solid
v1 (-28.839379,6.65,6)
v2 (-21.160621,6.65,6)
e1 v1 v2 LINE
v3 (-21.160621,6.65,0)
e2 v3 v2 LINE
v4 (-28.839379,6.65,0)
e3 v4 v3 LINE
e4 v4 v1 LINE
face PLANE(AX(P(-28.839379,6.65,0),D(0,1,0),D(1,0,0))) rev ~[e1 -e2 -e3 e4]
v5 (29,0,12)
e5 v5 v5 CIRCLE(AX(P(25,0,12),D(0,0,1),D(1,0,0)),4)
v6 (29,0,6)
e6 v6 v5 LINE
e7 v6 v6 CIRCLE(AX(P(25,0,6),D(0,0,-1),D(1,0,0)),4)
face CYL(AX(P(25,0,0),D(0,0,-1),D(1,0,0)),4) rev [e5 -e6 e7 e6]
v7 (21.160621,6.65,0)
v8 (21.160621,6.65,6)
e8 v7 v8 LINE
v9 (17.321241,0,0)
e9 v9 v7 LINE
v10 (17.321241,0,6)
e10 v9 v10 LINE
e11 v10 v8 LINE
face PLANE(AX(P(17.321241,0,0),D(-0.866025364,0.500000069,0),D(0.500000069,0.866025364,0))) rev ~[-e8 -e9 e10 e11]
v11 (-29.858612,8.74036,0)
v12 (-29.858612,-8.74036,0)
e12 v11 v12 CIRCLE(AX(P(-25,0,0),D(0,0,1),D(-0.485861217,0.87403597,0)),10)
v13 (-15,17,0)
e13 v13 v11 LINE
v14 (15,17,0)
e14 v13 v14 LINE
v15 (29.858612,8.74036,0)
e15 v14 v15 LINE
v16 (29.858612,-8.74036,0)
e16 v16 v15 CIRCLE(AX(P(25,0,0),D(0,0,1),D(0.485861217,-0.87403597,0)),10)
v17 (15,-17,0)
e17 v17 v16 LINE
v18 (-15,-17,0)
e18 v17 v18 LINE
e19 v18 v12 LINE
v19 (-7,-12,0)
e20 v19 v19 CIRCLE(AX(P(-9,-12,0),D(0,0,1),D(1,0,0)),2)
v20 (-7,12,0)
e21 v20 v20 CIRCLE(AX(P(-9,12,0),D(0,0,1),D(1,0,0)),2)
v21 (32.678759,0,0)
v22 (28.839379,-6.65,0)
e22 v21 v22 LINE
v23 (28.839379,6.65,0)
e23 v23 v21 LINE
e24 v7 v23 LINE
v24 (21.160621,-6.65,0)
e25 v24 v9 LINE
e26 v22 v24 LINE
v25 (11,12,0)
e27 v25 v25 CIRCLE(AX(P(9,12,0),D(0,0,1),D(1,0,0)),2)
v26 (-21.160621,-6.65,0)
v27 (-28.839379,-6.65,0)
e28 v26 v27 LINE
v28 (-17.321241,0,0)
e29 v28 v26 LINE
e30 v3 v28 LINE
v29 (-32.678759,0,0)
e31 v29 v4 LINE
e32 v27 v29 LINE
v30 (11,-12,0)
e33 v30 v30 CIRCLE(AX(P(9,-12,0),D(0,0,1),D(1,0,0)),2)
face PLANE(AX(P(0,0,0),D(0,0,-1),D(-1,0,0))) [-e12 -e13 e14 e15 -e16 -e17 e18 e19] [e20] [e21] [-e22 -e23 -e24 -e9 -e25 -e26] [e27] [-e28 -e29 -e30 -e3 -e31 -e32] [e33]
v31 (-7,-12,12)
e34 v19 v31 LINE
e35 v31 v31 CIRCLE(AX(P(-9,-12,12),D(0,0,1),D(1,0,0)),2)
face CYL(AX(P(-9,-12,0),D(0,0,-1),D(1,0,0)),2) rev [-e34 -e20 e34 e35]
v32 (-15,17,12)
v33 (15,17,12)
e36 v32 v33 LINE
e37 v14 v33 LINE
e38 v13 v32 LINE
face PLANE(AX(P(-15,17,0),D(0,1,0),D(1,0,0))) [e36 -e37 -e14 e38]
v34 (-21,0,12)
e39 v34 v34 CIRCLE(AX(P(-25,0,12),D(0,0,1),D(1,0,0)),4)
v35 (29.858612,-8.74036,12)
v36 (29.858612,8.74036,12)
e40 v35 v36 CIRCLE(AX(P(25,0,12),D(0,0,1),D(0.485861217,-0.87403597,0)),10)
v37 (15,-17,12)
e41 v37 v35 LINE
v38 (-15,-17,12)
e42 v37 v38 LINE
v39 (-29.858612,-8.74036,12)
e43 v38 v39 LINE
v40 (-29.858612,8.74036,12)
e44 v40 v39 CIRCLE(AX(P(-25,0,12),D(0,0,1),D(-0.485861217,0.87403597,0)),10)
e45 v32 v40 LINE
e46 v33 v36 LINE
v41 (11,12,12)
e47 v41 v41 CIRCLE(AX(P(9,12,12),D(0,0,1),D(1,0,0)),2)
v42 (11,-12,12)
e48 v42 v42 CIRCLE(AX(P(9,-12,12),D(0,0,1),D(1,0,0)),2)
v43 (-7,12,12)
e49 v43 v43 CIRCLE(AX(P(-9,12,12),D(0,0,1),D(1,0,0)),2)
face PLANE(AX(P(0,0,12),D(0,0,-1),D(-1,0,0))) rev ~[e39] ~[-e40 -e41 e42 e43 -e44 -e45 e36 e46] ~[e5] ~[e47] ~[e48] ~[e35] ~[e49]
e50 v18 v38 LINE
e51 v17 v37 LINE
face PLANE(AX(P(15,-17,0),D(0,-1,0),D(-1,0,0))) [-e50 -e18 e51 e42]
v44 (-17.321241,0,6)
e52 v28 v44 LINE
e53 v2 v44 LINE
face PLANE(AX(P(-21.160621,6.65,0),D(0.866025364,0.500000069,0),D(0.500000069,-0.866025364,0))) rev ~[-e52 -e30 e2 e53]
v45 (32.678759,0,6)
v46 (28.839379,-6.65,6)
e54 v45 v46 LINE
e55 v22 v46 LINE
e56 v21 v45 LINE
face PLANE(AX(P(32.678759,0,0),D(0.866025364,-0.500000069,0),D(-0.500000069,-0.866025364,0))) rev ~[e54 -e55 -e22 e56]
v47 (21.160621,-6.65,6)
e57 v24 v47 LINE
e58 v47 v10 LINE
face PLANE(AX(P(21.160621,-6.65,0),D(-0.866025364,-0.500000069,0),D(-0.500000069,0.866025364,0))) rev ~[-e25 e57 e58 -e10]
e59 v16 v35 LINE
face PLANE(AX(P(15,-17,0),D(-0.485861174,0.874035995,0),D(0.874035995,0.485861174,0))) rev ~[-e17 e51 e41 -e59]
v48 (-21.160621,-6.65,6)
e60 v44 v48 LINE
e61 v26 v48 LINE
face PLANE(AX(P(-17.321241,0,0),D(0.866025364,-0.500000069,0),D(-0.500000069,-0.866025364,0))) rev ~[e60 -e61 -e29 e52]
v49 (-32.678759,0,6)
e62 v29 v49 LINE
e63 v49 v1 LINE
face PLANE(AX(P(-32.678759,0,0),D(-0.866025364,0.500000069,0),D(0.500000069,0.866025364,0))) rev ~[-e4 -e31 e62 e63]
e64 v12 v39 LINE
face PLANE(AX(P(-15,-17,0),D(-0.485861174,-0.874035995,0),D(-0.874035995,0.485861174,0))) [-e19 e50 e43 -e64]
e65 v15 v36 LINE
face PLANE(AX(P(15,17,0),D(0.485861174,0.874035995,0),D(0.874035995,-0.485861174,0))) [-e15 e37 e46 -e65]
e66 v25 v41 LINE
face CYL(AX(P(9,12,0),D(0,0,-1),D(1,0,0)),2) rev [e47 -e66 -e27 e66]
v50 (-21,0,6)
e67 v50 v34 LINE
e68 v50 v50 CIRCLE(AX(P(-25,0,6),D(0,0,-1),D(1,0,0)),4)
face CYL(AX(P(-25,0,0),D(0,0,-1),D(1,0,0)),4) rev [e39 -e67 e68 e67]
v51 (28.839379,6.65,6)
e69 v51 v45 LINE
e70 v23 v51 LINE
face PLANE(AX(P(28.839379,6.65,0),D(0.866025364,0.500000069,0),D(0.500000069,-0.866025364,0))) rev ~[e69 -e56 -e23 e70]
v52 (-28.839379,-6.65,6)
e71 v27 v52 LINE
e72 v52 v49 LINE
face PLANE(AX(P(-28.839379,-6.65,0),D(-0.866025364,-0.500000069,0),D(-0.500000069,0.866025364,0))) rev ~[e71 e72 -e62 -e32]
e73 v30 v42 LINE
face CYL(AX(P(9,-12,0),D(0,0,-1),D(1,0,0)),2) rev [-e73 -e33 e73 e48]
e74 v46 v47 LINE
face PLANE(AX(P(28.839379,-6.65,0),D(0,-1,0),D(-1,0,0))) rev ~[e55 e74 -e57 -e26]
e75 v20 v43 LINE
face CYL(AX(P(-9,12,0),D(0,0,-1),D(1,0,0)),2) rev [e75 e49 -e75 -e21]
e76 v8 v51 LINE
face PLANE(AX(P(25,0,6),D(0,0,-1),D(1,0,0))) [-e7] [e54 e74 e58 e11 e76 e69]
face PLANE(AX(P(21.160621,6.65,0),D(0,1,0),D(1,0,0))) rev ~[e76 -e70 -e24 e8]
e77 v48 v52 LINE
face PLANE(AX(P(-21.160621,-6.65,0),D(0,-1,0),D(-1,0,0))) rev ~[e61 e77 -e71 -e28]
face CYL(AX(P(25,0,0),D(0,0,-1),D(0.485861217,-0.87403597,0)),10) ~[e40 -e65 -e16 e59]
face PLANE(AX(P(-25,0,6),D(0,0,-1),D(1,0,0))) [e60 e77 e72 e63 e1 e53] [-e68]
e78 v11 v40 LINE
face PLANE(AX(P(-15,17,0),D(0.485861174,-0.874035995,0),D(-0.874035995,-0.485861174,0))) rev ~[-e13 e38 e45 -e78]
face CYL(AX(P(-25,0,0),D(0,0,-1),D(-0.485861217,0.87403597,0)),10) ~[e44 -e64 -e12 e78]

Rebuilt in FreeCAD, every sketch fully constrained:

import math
import FreeCAD as App
import Part
import Sketcher

V = App.Vector
Q = App.Units.Quantity

doc = App.newDocument("Part")
body = doc.addObject("PartDesign::Body", "Body")

# Sketch on XY plane
sketch1 = body.newObject("Sketcher::SketchObject", "Sketch")
sketch1.AttachmentSupport = (doc.getObject("XY_Plane"), [""])
sketch1.MapMode = "FlatFace"
sketch1.addGeometry(Part.LineSegment(V(15, 17, 0), V(-15, 17, 0)), False)
sketch1.addGeometry(Part.LineSegment(V(-15, 17, 0), V(-29.858612, 8.74036, 0)), False)
sketch1.addGeometry(Part.ArcOfCircle(Part.Circle(V(-25, 0, 0), V(0, 0, 1), 10), math.radians(119.068912), math.radians(240.931088)), False)
sketch1.addGeometry(Part.LineSegment(V(-29.858612, -8.74036, 0), V(-15, -17, 0)), False)
sketch1.addGeometry(Part.LineSegment(V(-15, -17, 0), V(15, -17, 0)), False)
sketch1.addGeometry(Part.LineSegment(V(15, -17, 0), V(29.858612, -8.74036, 0)), False)
sketch1.addGeometry(Part.ArcOfCircle(Part.Circle(V(25, 0, 0), V(0, 0, 1), 10), math.radians(-60.931088), math.radians(60.931088)), False)
sketch1.addGeometry(Part.LineSegment(V(29.858612, 8.74036, 0), V(15, 17, 0)), False)
sketch1.addGeometry(Part.Circle(V(9, -12, 0), V(0, 0, 1), 2), False)
sketch1.addGeometry(Part.Circle(V(-9, -12, 0), V(0, 0, 1), 2), False)
sketch1.addGeometry(Part.Circle(V(25, 0, 0), V(0, 0, 1), 4), False)
sketch1.addGeometry(Part.Circle(V(9, 12, 0), V(0, 0, 1), 2), False)
sketch1.addGeometry(Part.Circle(V(-25, 0, 0), V(0, 0, 1), 4), False)
sketch1.addGeometry(Part.Circle(V(-9, 12, 0), V(0, 0, 1), 2), False)
sketch1.addConstraint(Sketcher.Constraint("Coincident", 0, 2, 1, 1))
sketch1.addConstraint(Sketcher.Constraint("Tangent", 1, 2, 2, 1))
sketch1.addConstraint(Sketcher.Constraint("Tangent", 2, 2, 3, 1))
sketch1.addConstraint(Sketcher.Constraint("Coincident", 3, 2, 4, 1))
sketch1.addConstraint(Sketcher.Constraint("Coincident", 4, 2, 5, 1))
sketch1.addConstraint(Sketcher.Constraint("Tangent", 5, 2, 6, 1))
sketch1.addConstraint(Sketcher.Constraint("Tangent", 6, 2, 7, 1))
sketch1.addConstraint(Sketcher.Constraint("Coincident", 7, 2, 0, 1))
sketch1.addConstraint(Sketcher.Constraint("Horizontal", 0))
sketch1.addConstraint(Sketcher.Constraint("Horizontal", 4))
sketch1.addConstraint(Sketcher.Constraint("Coincident", 10, 3, 6, 3))
sketch1.addConstraint(Sketcher.Constraint("Coincident", 12, 3, 2, 3))
sketch1.addConstraint(Sketcher.Constraint("Equal", 2, 6))
sketch1.addConstraint(Sketcher.Constraint("Equal", 8, 9))
sketch1.addConstraint(Sketcher.Constraint("Equal", 9, 11))
sketch1.addConstraint(Sketcher.Constraint("Equal", 10, 12))
sketch1.addConstraint(Sketcher.Constraint("Equal", 11, 13))
sketch1.addConstraint(Sketcher.Constraint("Symmetric", 2, 3, 6, 3, -1, 1))
sketch1.addConstraint(Sketcher.Constraint("Symmetric", 9, 3, 11, 3, -1, 1))
sketch1.addConstraint(Sketcher.Constraint("Symmetric", 8, 3, 13, 3, -1, 1))
sketch1.addConstraint(Sketcher.Constraint("Symmetric", 0, 2, 4, 2, -1, 1))
sketch1.addConstraint(Sketcher.Constraint("Symmetric", 8, 3, 9, 3, -2))
sketch1.addConstraint(Sketcher.Constraint("Symmetric", 2, 2, 5, 2, -2))
sketch1.addConstraint(Sketcher.Constraint("Parallel", 3, 7))
sketch1.addConstraint(Sketcher.Constraint("Diameter", 8, Q("4 mm")))
sketch1.addConstraint(Sketcher.Constraint("Diameter", 10, Q("8 mm")))
sketch1.addConstraint(Sketcher.Constraint("Radius", 2, Q("10 mm")))
sketch1.addConstraint(Sketcher.Constraint("DistanceX", 0, 2, 0, 1, Q("30 mm")))
sketch1.addConstraint(Sketcher.Constraint("Distance", 1, Q("17 mm")))
sketch1.addConstraint(Sketcher.Constraint("DistanceX", 2, 3, -1, 1, Q("25 mm")))
sketch1.addConstraint(Sketcher.Constraint("DistanceX", -1, 1, 8, 3, Q("9 mm")))
sketch1.addConstraint(Sketcher.Constraint("DistanceY", 8, 3, -1, 1, Q("12 mm")))
pad1 = body.newObject("PartDesign::Pad", "Pad")
pad1.Profile = sketch1
pad1.Length = 12

# Sketch on XY plane
sketch2 = body.newObject("Sketcher::SketchObject", "Sketch001")
sketch2.AttachmentSupport = (doc.getObject("XY_Plane"), [""])
sketch2.MapMode = "FlatFace"
sketch2.addGeometry(Part.LineSegment(V(-28.839379, -6.65, 0), V(-32.678759, 0, 0)), False)
sketch2.addGeometry(Part.LineSegment(V(-32.678759, 0, 0), V(-28.839379, 6.65, 0)), False)
sketch2.addGeometry(Part.LineSegment(V(-28.839379, 6.65, 0), V(-21.160621, 6.65, 0)), False)
sketch2.addGeometry(Part.LineSegment(V(-21.160621, 6.65, 0), V(-17.321241, 0, 0)), False)
sketch2.addGeometry(Part.LineSegment(V(-17.321241, 0, 0), V(-21.160621, -6.65, 0)), False)
sketch2.addGeometry(Part.LineSegment(V(-21.160621, -6.65, 0), V(-28.839379, -6.65, 0)), False)
sketch2.addGeometry(Part.LineSegment(V(17.321241, 0, 0), V(21.160621, 6.65, 0)), False)
sketch2.addGeometry(Part.LineSegment(V(21.160621, 6.65, 0), V(28.839379, 6.65, 0)), False)
sketch2.addGeometry(Part.LineSegment(V(28.839379, 6.65, 0), V(32.678759, 0, 0)), False)
sketch2.addGeometry(Part.LineSegment(V(32.678759, 0, 0), V(28.839379, -6.65, 0)), False)
sketch2.addGeometry(Part.LineSegment(V(28.839379, -6.65, 0), V(21.160621, -6.65, 0)), False)
sketch2.addGeometry(Part.LineSegment(V(21.160621, -6.65, 0), V(17.321241, 0, 0)), False)
sketch2.addConstraint(Sketcher.Constraint("Coincident", 0, 2, 1, 1))
sketch2.addConstraint(Sketcher.Constraint("Coincident", 1, 2, 2, 1))
sketch2.addConstraint(Sketcher.Constraint("Coincident", 2, 2, 3, 1))
sketch2.addConstraint(Sketcher.Constraint("Coincident", 3, 2, 4, 1))
sketch2.addConstraint(Sketcher.Constraint("Coincident", 4, 2, 5, 1))
sketch2.addConstraint(Sketcher.Constraint("Coincident", 5, 2, 0, 1))
sketch2.addConstraint(Sketcher.Constraint("Coincident", 6, 2, 7, 1))
sketch2.addConstraint(Sketcher.Constraint("Coincident", 7, 2, 8, 1))
sketch2.addConstraint(Sketcher.Constraint("Coincident", 8, 2, 9, 1))
sketch2.addConstraint(Sketcher.Constraint("Coincident", 9, 2, 10, 1))
sketch2.addConstraint(Sketcher.Constraint("Coincident", 10, 2, 11, 1))
sketch2.addConstraint(Sketcher.Constraint("Coincident", 11, 2, 6, 1))
sketch2.addConstraint(Sketcher.Constraint("Horizontal", 2))
sketch2.addConstraint(Sketcher.Constraint("Horizontal", 5))
sketch2.addConstraint(Sketcher.Constraint("Horizontal", 7))
sketch2.addConstraint(Sketcher.Constraint("Horizontal", 10))
sketch2.addConstraint(Sketcher.Constraint("Symmetric", 4, 2, 6, 2, -1, 1))
sketch2.addConstraint(Sketcher.Constraint("Symmetric", 0, 2, 8, 2, -1, 1))
sketch2.addConstraint(Sketcher.Constraint("Symmetric", 1, 2, 9, 2, -1, 1))
sketch2.addConstraint(Sketcher.Constraint("Symmetric", 3, 2, 11, 2, -1, 1))
sketch2.addConstraint(Sketcher.Constraint("Symmetric", 2, 2, 6, 2, -2))
sketch2.addConstraint(Sketcher.Constraint("PointOnObject", 0, 2, -1))
sketch2.addConstraint(Sketcher.Constraint("PointOnObject", 3, 2, -1))
sketch2.addConstraint(Sketcher.Constraint("Parallel", 0, 3))
sketch2.addConstraint(Sketcher.Constraint("Parallel", 1, 4))
sketch2.addConstraint(Sketcher.Constraint("Parallel", 3, 8))
sketch2.addConstraint(Sketcher.Constraint("Parallel", 8, 11))
sketch2.addConstraint(Sketcher.Constraint("Angle", 0, Q("120.000005 deg")))
sketch2.addConstraint(Sketcher.Constraint("DistanceX", 1, 2, 6, 2, Q("50 mm")))
sketch2.addConstraint(Sketcher.Constraint("DistanceY", 4, 2, 2, 2, Q("13.3 mm")))
sketch2.addConstraint(Sketcher.Constraint("DistanceX", 2, 1, 2, 2, Q("7.678758 mm")))
pocket1 = body.newObject("PartDesign::Pocket", "Pocket")
pocket1.Profile = sketch2
pocket1.Length = 6
pocket1.Reversed = True

doc.recompute()
